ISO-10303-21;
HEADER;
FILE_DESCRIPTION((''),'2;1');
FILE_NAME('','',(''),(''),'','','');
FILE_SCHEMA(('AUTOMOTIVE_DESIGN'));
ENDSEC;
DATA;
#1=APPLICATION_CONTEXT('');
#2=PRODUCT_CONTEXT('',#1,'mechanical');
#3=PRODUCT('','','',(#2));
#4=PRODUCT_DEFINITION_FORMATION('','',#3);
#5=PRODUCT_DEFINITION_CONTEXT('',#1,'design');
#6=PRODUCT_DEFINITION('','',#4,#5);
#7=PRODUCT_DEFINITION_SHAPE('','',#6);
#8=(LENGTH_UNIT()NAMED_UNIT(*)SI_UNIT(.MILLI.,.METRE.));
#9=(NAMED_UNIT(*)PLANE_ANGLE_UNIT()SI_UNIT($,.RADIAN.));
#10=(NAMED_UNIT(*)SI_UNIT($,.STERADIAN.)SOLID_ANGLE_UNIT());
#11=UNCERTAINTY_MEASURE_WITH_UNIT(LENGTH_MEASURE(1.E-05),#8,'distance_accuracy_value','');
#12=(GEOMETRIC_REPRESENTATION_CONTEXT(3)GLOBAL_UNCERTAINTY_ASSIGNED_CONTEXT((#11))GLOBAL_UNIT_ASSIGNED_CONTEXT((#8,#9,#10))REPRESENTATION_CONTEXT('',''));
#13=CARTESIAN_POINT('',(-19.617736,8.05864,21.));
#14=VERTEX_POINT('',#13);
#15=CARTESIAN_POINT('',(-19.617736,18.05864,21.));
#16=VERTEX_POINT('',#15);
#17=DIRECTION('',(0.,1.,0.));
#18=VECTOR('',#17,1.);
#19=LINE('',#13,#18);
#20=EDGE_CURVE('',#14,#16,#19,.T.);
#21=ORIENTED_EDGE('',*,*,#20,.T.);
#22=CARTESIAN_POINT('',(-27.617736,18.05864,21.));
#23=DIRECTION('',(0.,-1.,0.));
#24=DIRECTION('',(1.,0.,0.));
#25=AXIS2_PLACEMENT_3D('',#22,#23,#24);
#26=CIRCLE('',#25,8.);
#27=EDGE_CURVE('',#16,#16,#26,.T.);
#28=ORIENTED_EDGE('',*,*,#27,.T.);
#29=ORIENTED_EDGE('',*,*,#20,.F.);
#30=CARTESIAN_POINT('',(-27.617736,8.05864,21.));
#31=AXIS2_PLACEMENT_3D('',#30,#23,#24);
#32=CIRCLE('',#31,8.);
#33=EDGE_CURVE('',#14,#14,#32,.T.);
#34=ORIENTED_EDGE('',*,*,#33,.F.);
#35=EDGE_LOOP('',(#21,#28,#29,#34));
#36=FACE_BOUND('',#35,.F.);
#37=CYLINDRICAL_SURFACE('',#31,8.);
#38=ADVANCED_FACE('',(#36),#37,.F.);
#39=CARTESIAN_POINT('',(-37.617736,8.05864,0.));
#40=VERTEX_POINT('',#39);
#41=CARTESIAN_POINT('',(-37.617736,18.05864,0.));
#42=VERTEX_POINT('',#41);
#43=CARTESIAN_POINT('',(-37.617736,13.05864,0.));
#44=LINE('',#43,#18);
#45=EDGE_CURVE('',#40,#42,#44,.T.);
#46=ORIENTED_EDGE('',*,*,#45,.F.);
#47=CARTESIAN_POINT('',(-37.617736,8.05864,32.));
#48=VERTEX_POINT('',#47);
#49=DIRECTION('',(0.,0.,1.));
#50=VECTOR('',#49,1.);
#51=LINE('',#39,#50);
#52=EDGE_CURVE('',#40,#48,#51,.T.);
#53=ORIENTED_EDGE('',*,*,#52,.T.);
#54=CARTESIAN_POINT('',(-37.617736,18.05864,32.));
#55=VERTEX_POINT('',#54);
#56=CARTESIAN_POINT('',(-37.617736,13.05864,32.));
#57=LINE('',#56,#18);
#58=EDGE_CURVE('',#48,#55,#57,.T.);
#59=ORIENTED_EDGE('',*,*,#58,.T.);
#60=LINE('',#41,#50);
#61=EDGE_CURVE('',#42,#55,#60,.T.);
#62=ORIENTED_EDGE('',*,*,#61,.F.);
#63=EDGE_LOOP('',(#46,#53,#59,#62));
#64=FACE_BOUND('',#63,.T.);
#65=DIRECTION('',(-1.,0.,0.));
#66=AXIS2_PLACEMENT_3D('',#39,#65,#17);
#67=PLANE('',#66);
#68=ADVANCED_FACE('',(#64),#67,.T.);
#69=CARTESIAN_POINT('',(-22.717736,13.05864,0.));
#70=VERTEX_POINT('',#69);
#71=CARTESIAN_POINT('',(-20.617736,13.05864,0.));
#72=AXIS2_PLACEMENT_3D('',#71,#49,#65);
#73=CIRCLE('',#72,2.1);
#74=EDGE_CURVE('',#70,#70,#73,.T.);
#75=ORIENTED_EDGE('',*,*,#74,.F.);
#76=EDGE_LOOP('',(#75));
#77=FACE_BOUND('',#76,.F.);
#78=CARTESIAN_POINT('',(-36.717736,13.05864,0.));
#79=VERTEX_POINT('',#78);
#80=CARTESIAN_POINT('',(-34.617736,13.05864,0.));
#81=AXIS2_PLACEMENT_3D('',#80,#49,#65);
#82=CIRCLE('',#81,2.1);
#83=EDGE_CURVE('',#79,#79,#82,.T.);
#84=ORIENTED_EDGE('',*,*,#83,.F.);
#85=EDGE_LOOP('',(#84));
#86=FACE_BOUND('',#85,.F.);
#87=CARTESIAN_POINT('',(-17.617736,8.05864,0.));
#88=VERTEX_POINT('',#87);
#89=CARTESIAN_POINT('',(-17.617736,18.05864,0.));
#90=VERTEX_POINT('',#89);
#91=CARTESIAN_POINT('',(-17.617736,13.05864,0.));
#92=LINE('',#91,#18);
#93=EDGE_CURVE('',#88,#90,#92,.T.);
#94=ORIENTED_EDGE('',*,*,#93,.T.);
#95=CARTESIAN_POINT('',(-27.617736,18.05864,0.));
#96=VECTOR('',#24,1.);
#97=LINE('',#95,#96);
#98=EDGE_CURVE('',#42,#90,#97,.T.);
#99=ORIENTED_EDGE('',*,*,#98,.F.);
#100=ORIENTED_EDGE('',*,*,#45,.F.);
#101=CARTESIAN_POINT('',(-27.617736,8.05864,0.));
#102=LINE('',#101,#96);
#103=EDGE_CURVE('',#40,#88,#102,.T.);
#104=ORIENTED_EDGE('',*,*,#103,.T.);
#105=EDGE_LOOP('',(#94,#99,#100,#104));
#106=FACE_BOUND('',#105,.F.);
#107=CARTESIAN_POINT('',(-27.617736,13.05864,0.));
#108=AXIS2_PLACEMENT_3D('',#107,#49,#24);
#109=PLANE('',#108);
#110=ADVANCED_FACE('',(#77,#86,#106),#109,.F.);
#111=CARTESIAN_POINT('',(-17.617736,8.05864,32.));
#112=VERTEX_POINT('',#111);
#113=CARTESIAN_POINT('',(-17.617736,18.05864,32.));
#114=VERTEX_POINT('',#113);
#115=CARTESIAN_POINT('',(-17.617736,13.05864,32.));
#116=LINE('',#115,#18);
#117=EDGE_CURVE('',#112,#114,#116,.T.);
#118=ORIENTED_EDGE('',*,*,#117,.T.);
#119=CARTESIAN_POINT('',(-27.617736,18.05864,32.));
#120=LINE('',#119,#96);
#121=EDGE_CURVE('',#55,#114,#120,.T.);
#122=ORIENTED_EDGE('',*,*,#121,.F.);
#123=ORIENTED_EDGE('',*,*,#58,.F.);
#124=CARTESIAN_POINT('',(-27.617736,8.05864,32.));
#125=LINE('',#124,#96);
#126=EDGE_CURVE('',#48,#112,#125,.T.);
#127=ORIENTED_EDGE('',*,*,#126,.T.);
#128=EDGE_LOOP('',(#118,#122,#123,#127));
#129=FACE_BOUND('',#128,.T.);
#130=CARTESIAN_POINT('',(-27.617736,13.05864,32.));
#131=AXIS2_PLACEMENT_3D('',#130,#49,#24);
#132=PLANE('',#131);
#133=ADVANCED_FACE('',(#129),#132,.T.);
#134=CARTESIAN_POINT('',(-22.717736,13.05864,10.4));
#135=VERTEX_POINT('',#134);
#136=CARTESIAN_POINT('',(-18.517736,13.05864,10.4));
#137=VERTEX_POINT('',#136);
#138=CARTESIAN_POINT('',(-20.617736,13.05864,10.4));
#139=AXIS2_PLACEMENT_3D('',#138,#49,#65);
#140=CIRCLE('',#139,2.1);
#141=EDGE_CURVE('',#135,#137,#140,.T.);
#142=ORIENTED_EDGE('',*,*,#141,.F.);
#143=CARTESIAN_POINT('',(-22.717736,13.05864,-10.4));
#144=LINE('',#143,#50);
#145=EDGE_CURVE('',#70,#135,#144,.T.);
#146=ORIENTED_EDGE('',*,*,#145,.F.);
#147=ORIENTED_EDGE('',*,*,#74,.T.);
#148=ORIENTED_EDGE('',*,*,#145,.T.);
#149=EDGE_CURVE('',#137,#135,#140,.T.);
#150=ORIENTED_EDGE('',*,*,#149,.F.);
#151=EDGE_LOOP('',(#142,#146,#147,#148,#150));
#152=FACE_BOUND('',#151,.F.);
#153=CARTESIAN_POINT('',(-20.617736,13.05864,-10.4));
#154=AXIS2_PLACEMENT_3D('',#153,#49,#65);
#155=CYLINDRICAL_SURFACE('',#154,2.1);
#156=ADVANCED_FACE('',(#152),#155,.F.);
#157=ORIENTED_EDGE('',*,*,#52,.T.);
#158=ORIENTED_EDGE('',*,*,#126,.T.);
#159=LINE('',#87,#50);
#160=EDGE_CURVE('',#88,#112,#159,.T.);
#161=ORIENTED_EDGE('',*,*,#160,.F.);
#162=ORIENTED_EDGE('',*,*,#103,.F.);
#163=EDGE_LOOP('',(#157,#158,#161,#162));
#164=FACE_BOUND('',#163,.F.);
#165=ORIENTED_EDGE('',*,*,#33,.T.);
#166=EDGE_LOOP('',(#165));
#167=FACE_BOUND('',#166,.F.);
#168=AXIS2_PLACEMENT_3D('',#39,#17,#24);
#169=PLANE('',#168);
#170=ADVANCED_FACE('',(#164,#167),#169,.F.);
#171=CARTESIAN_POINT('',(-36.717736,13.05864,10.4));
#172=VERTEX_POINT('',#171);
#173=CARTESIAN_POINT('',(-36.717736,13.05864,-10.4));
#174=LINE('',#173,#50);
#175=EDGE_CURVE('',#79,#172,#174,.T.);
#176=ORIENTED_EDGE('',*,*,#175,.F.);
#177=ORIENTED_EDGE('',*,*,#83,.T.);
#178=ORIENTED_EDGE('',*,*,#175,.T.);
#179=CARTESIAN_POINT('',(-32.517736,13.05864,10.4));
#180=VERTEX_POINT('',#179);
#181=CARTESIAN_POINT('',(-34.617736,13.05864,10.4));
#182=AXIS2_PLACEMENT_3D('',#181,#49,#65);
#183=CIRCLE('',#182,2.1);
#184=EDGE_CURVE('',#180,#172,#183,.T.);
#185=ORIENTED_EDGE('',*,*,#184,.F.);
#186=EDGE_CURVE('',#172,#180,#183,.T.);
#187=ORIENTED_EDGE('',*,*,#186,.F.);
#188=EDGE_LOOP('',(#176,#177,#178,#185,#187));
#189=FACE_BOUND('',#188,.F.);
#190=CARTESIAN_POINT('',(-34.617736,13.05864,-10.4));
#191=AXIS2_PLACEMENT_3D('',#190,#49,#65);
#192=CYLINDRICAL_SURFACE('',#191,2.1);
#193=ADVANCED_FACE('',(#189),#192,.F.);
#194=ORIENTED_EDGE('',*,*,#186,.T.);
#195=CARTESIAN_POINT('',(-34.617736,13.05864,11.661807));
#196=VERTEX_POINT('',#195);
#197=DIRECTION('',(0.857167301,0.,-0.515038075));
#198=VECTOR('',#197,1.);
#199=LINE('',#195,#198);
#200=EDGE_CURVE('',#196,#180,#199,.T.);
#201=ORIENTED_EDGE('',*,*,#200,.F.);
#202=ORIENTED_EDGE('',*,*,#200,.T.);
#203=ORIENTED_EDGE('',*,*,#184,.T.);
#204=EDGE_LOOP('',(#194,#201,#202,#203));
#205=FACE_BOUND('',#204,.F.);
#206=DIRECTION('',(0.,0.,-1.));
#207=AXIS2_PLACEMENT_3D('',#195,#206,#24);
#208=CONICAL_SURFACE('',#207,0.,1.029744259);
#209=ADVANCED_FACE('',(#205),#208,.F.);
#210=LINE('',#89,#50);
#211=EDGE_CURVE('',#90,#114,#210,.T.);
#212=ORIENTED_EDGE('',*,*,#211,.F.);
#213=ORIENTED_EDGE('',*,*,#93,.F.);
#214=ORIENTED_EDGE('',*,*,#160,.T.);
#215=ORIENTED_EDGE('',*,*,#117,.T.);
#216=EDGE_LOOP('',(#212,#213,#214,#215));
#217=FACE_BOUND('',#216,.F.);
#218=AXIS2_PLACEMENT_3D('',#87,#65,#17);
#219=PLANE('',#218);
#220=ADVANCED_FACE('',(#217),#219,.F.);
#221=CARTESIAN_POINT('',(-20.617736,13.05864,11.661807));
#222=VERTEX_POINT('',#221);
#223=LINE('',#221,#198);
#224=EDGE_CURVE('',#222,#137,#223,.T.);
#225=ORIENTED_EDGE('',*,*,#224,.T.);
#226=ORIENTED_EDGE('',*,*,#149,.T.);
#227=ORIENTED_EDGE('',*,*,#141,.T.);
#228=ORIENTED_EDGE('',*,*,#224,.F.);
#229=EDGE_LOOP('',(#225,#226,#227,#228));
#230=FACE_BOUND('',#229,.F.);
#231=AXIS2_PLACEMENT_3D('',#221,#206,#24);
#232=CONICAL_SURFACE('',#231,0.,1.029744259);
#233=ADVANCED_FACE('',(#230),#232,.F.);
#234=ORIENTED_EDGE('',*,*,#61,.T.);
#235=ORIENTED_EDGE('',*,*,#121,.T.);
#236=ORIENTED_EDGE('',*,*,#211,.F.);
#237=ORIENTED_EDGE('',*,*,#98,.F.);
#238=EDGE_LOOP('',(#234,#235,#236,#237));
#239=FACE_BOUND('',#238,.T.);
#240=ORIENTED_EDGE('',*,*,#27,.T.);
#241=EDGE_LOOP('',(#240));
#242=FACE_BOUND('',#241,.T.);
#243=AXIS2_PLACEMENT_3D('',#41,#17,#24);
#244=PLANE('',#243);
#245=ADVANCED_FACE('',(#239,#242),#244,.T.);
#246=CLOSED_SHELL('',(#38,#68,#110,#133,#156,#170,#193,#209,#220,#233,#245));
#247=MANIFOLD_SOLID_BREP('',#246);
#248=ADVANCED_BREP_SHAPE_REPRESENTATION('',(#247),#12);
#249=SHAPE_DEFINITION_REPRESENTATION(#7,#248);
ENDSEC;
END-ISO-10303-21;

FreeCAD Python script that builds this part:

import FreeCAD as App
import Part
import Sketcher

V = App.Vector
Q = App.Units.Quantity


def add_polygon(sketch, points):
    """Adds a closed chain of lines whose ends are joined by coincident constraints."""
    first, n = sketch.GeometryCount, len(points)
    for a, b in zip(points, points[1:] + points[:1]):
        sketch.addGeometry(Part.LineSegment(App.Vector(*a, 0), App.Vector(*b, 0)), False)
    for i in range(n):
        sketch.addConstraint(Sketcher.Constraint("Coincident", first + i, 2, first + (i + 1) % n, 1))

doc = App.newDocument("Part")
body = doc.addObject("PartDesign::Body", "Body")

# Sketch on XY plane
sketch1 = body.newObject("Sketcher::SketchObject", "Sketch")
sketch1.AttachmentSupport = (doc.getObject("XY_Plane"), [""])
sketch1.MapMode = "FlatFace"
add_polygon(sketch1, [(-38, 18), (-38, 8), (-18, 8), (-18, 18)])  # lines 0-3
sketch1.addConstraint([
    Sketcher.Constraint("Vertical", 0),
    Sketcher.Constraint("Horizontal", 1),
    Sketcher.Constraint("Vertical", 2),
    Sketcher.Constraint("Horizontal", 3),
    Sketcher.Constraint("DistanceX", 1, 1, 1, 2, Q("20 mm")),
    Sketcher.Constraint("DistanceY", 0, 2, 0, 1, Q("10 mm")),
    Sketcher.Constraint("DistanceY", -1, 1, 0, 2, Q("8.05864 mm")),
    Sketcher.Constraint("DistanceX", 0, 2, -1, 1, Q("37.617736 mm")),
])
pad1 = body.newObject("PartDesign::Pad", "Pad")
pad1.Profile = sketch1
pad1.Length = 32

# Sketch on XZ plane
sketch2 = body.newObject("Sketcher::SketchObject", "Sketch001")
sketch2.AttachmentSupport = (doc.getObject("XZ_Plane"), [""])
sketch2.MapMode = "FlatFace"
sketch2.AttachmentOffset = App.Placement(V(0, 0, -8.05864), App.Rotation())
sketch2.addGeometry(Part.Circle(V(-28, 21, 0), V(0, 0, 1), 8), False)
sketch2.addConstraint([
    Sketcher.Constraint("Diameter", 0, Q("16 mm")),
    Sketcher.Constraint("DistanceY", -1, 1, 0, 3, Q("21 mm")),
    Sketcher.Constraint("DistanceX", 0, 3, -1, 1, Q("27.617736 mm")),
])
pocket1 = body.newObject("PartDesign::Pocket", "Pocket")
pocket1.Profile = sketch2
pocket1.Length = 25

# Sketch on XY plane
sketch3 = body.newObject("Sketcher::SketchObject", "Sketch002")
sketch3.AttachmentSupport = (doc.getObject("XY_Plane"), [""])
sketch3.MapMode = "FlatFace"
sketch3.addGeometry([
    Part.Circle(V(-34.6, 13.1, 0), V(0, 0, 1), 2.1),
    Part.Circle(V(-20.6, 13.1, 0), V(0, 0, 1), 2.1),
], False)
sketch3.addConstraint([
    Sketcher.Constraint("Equal", 0, 1),
    Sketcher.Constraint("Horizontal", 0, 3, 1, 3),
    Sketcher.Constraint("Diameter", 0, Q("4.2 mm")),
    Sketcher.Constraint("DistanceX", 0, 3, 1, 3, Q("14 mm")),
    Sketcher.Constraint("DistanceY", -1, 1, 0, 3, Q("13.05864 mm")),
    Sketcher.Constraint("DistanceX", 0, 3, -1, 1, Q("34.617736 mm")),
])
doc.recompute()
hole = body.newObject("PartDesign::Hole", "Hole")
hole.Profile = sketch3
hole.ThreadType = "None"
hole.Diameter = 4.2
hole.DepthType = "Dimension"
hole.Depth = 10.4
hole.DrillPoint = "Angled"
hole.DrillPointAngle = 118
hole.Reversed = True

doc.recompute()
